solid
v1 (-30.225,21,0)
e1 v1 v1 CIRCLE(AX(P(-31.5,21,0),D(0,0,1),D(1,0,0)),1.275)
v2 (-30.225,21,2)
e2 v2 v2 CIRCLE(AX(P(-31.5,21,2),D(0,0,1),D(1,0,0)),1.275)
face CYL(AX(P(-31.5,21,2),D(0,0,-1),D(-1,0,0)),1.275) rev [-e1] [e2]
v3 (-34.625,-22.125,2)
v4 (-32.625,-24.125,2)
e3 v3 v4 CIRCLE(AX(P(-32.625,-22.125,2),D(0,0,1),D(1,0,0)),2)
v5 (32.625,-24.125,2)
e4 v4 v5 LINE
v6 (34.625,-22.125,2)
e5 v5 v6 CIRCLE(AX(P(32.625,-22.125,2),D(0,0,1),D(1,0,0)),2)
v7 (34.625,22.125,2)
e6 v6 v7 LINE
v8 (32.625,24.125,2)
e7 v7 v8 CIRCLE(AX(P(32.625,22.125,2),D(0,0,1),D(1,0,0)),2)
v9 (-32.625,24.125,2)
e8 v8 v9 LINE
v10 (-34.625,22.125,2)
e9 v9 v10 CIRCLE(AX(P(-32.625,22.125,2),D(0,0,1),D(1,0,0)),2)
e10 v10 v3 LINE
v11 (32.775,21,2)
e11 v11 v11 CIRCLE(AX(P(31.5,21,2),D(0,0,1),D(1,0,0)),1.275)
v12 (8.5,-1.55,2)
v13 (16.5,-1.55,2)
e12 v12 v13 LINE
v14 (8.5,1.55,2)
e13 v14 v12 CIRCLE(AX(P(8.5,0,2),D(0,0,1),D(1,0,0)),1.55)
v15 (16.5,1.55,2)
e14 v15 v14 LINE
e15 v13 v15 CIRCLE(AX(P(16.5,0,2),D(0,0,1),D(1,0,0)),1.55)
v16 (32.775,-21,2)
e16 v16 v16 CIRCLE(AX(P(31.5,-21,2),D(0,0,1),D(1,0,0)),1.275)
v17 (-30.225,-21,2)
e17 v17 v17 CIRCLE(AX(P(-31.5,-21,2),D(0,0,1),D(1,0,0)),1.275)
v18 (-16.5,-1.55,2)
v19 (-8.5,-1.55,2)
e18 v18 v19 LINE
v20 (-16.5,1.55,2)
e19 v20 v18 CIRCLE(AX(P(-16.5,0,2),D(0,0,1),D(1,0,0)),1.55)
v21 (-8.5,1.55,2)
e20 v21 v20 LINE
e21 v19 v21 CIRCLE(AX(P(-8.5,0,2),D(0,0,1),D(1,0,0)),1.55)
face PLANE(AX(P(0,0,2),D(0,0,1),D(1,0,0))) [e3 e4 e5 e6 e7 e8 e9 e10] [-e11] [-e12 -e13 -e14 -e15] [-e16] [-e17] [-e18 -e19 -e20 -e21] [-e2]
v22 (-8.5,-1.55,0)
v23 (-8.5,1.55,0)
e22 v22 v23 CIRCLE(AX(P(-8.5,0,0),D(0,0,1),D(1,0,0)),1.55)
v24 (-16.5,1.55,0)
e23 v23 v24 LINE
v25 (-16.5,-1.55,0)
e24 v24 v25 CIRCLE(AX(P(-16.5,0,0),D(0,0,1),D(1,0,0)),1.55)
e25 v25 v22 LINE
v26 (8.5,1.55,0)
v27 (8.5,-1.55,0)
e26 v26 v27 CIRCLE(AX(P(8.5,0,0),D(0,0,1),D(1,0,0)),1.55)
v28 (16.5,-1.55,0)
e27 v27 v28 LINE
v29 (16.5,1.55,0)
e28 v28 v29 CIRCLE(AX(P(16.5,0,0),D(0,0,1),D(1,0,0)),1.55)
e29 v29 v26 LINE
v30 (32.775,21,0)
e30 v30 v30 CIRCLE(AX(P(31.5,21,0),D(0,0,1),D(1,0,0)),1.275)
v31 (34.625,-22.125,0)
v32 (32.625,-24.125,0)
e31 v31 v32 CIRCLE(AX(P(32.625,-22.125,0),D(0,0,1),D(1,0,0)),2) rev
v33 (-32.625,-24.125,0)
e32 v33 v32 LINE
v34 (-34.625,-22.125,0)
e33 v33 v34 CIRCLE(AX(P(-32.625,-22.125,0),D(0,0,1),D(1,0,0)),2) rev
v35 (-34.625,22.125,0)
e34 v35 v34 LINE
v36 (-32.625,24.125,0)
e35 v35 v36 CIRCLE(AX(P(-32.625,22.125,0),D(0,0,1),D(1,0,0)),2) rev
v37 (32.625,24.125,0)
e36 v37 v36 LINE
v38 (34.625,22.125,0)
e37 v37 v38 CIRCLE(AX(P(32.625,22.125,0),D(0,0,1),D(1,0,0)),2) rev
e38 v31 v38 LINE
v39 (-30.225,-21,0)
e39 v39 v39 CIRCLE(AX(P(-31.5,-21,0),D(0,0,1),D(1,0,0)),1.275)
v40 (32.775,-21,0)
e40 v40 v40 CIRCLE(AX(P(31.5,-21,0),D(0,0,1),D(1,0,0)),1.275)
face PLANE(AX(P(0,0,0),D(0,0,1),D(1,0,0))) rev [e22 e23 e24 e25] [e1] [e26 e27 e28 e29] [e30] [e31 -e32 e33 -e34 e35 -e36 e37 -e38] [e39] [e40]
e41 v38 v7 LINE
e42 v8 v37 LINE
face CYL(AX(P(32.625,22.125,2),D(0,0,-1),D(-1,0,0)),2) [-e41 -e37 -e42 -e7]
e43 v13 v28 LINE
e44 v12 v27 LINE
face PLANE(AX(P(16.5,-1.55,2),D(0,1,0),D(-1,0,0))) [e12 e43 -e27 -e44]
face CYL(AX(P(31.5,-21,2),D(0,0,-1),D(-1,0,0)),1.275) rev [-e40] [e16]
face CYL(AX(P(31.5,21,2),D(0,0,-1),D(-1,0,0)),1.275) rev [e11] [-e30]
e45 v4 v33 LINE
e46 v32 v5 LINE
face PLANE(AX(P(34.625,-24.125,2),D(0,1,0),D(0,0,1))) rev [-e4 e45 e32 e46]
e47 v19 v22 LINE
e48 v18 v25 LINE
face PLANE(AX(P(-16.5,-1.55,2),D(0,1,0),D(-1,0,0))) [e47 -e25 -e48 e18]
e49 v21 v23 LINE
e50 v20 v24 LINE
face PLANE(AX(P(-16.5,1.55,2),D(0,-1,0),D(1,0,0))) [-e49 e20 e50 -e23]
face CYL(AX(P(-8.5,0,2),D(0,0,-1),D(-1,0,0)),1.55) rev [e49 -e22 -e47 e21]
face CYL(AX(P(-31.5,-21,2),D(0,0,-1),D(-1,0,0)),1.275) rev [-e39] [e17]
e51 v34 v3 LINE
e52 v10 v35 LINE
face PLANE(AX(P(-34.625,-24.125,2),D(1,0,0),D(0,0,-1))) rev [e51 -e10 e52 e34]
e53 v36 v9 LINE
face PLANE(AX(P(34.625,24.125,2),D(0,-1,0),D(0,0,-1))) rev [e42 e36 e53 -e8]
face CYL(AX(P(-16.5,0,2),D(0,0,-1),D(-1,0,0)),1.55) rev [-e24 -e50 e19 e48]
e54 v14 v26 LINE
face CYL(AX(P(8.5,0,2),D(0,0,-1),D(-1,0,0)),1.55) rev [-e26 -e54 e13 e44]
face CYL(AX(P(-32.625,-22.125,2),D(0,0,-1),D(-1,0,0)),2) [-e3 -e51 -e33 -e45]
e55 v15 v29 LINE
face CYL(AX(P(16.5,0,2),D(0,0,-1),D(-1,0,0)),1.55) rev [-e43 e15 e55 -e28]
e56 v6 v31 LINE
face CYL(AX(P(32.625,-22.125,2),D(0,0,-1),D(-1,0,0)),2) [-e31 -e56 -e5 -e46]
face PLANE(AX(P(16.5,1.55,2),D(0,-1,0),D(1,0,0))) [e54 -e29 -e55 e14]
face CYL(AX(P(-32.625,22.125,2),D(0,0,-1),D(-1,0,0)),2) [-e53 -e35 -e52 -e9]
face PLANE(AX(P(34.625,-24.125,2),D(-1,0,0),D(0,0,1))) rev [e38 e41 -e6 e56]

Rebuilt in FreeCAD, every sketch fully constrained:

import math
import FreeCAD as App
import Part
import Sketcher
Q = App.Units.Quantity


def edges_at(feature, points):
    """Names of the edges that pass closest to the given points."""
    edges = feature.Shape.Edges
    near = lambda p: min(range(len(edges)), key=lambda i: edges[i].distToShape(Part.Vertex(*p))[0])
    return sorted({f"Edge{near(p) + 1}" for p in points})


def add_polygon(sketch, points):
    """Adds a closed chain of lines whose ends are joined by coincident constraints."""
    first, n = sketch.GeometryCount, len(points)
    for a, b in zip(points, points[1:] + points[:1]):
        sketch.addGeometry(Part.LineSegment(App.Vector(*a, 0), App.Vector(*b, 0)), False)
    for i in range(n):
        sketch.addConstraint(Sketcher.Constraint("Coincident", first + i, 2, first + (i + 1) % n, 1))

doc = App.newDocument("Part")
body = doc.addObject("PartDesign::Body", "Body")

# Sketch on XY plane
sketch1 = body.newObject("Sketcher::SketchObject", "Sketch")
sketch1.AttachmentSupport = (doc.getObject("XY_Plane"), [""])
sketch1.MapMode = "FlatFace"
add_polygon(sketch1, [(-34.6, 24.1), (-34.6, -24.1), (34.6, -24.1), (34.6, 24.1)])  # lines 0-3
sketch1.addGeometry(Part.Circle(App.Vector(-31.5, -21, 0), App.Vector(0, 0, 1), 1.3), False)  # 4
sketch1.addGeometry(Part.Circle(App.Vector(31.5, -21, 0), App.Vector(0, 0, 1), 1.3), False)  # 5
sketch1.addGeometry(Part.ArcOfCircle(Part.Circle(App.Vector(-16.5, 0, 0), App.Vector(0, 0, 1), 1.6), math.radians(90), math.radians(270)), False)  # 6
sketch1.addGeometry(Part.LineSegment(App.Vector(-16.5, 1.6, 0), App.Vector(-8.5, 1.6, 0)), False)  # 7
sketch1.addGeometry(Part.ArcOfCircle(Part.Circle(App.Vector(-8.5, 0, 0), App.Vector(0, 0, 1), 1.6), math.radians(-90), math.radians(90)), False)  # 8
sketch1.addGeometry(Part.LineSegment(App.Vector(-8.5, -1.6, 0), App.Vector(-16.5, -1.6, 0)), False)  # 9
sketch1.addGeometry(Part.Circle(App.Vector(-31.5, 21, 0), App.Vector(0, 0, 1), 1.3), False)  # 10
sketch1.addGeometry(Part.ArcOfCircle(Part.Circle(App.Vector(16.5, 0, 0), App.Vector(0, 0, 1), 1.6), math.radians(-90), math.radians(90)), False)  # 11
sketch1.addGeometry(Part.LineSegment(App.Vector(16.5, -1.6, 0), App.Vector(8.5, -1.6, 0)), False)  # 12
sketch1.addGeometry(Part.ArcOfCircle(Part.Circle(App.Vector(8.5, 0, 0), App.Vector(0, 0, 1), 1.6), math.radians(90), math.radians(270)), False)  # 13
sketch1.addGeometry(Part.LineSegment(App.Vector(8.5, 1.6, 0), App.Vector(16.5, 1.6, 0)), False)  # 14
sketch1.addGeometry(Part.Circle(App.Vector(31.5, 21, 0), App.Vector(0, 0, 1), 1.3), False)  # 15
sketch1.addConstraint([
    Sketcher.Constraint("Tangent", 6, 1, 7, 1),
    Sketcher.Constraint("Tangent", 7, 2, 8, 2),
    Sketcher.Constraint("Tangent", 8, 1, 9, 1),
    Sketcher.Constraint("Tangent", 9, 2, 6, 2),
    Sketcher.Constraint("Tangent", 11, 1, 12, 1),
    Sketcher.Constraint("Tangent", 12, 2, 13, 2),
    Sketcher.Constraint("Tangent", 13, 1, 14, 1),
    Sketcher.Constraint("Tangent", 14, 2, 11, 2),
    Sketcher.Constraint("Vertical", 0),
    Sketcher.Constraint("Horizontal", 1),
    Sketcher.Constraint("Vertical", 2),
    Sketcher.Constraint("Horizontal", 3),
    Sketcher.Constraint("Horizontal", 7),
    Sketcher.Constraint("Horizontal", 9),
    Sketcher.Constraint("Horizontal", 12),
    Sketcher.Constraint("Horizontal", 14),
    Sketcher.Constraint("Equal", 4, 5),
    Sketcher.Constraint("Equal", 5, 10),
    Sketcher.Constraint("Equal", 8, 11),
    Sketcher.Constraint("Equal", 10, 15),
    Sketcher.Constraint("Symmetric", 5, 3, 10, 3, -1, 1),
    Sketcher.Constraint("Symmetric", 6, 3, 11, 3, -1, 1),
    Sketcher.Constraint("Symmetric", 4, 3, 15, 3, -1, 1),
    Sketcher.Constraint("Symmetric", 0, 2, 2, 2, -1, 1),
    Sketcher.Constraint("Symmetric", 4, 3, 5, 3, -2),
    Sketcher.Constraint("Symmetric", 8, 3, 13, 3, -2),
    Sketcher.Constraint("Diameter", 4, Q("2.55 mm")),
    Sketcher.Constraint("DistanceX", 7, 1, 7, 2, Q("8 mm")),
    Sketcher.Constraint("Radius", 6, Q("1.55 mm")),
    Sketcher.Constraint("DistanceY", 4, 3, -1, 1, Q("21 mm")),
    Sketcher.Constraint("DistanceX", 4, 3, 5, 3, Q("63 mm")),
    Sketcher.Constraint("DistanceX", 4, 3, 6, 3, Q("15 mm")),
    Sketcher.Constraint("DistanceX", 1, 1, 1, 2, Q("69.25 mm")),
    Sketcher.Constraint("DistanceY", 0, 2, 0, 1, Q("48.25 mm")),
])
pad1 = body.newObject("PartDesign::Pad", "Pad")
pad1.Profile = sketch1
pad1.Length = 2
doc.recompute()

fillet = body.newObject("PartDesign::Fillet", "Fillet")
fillet.Base = (pad1, edges_at(pad1, [
    (-34.625, 24.125, 1),
    (34.625, 24.125, 1),
    (34.625, -24.125, 1),
    (-34.625, -24.125, 1),
]))
fillet.Radius = 2

doc.recompute()
